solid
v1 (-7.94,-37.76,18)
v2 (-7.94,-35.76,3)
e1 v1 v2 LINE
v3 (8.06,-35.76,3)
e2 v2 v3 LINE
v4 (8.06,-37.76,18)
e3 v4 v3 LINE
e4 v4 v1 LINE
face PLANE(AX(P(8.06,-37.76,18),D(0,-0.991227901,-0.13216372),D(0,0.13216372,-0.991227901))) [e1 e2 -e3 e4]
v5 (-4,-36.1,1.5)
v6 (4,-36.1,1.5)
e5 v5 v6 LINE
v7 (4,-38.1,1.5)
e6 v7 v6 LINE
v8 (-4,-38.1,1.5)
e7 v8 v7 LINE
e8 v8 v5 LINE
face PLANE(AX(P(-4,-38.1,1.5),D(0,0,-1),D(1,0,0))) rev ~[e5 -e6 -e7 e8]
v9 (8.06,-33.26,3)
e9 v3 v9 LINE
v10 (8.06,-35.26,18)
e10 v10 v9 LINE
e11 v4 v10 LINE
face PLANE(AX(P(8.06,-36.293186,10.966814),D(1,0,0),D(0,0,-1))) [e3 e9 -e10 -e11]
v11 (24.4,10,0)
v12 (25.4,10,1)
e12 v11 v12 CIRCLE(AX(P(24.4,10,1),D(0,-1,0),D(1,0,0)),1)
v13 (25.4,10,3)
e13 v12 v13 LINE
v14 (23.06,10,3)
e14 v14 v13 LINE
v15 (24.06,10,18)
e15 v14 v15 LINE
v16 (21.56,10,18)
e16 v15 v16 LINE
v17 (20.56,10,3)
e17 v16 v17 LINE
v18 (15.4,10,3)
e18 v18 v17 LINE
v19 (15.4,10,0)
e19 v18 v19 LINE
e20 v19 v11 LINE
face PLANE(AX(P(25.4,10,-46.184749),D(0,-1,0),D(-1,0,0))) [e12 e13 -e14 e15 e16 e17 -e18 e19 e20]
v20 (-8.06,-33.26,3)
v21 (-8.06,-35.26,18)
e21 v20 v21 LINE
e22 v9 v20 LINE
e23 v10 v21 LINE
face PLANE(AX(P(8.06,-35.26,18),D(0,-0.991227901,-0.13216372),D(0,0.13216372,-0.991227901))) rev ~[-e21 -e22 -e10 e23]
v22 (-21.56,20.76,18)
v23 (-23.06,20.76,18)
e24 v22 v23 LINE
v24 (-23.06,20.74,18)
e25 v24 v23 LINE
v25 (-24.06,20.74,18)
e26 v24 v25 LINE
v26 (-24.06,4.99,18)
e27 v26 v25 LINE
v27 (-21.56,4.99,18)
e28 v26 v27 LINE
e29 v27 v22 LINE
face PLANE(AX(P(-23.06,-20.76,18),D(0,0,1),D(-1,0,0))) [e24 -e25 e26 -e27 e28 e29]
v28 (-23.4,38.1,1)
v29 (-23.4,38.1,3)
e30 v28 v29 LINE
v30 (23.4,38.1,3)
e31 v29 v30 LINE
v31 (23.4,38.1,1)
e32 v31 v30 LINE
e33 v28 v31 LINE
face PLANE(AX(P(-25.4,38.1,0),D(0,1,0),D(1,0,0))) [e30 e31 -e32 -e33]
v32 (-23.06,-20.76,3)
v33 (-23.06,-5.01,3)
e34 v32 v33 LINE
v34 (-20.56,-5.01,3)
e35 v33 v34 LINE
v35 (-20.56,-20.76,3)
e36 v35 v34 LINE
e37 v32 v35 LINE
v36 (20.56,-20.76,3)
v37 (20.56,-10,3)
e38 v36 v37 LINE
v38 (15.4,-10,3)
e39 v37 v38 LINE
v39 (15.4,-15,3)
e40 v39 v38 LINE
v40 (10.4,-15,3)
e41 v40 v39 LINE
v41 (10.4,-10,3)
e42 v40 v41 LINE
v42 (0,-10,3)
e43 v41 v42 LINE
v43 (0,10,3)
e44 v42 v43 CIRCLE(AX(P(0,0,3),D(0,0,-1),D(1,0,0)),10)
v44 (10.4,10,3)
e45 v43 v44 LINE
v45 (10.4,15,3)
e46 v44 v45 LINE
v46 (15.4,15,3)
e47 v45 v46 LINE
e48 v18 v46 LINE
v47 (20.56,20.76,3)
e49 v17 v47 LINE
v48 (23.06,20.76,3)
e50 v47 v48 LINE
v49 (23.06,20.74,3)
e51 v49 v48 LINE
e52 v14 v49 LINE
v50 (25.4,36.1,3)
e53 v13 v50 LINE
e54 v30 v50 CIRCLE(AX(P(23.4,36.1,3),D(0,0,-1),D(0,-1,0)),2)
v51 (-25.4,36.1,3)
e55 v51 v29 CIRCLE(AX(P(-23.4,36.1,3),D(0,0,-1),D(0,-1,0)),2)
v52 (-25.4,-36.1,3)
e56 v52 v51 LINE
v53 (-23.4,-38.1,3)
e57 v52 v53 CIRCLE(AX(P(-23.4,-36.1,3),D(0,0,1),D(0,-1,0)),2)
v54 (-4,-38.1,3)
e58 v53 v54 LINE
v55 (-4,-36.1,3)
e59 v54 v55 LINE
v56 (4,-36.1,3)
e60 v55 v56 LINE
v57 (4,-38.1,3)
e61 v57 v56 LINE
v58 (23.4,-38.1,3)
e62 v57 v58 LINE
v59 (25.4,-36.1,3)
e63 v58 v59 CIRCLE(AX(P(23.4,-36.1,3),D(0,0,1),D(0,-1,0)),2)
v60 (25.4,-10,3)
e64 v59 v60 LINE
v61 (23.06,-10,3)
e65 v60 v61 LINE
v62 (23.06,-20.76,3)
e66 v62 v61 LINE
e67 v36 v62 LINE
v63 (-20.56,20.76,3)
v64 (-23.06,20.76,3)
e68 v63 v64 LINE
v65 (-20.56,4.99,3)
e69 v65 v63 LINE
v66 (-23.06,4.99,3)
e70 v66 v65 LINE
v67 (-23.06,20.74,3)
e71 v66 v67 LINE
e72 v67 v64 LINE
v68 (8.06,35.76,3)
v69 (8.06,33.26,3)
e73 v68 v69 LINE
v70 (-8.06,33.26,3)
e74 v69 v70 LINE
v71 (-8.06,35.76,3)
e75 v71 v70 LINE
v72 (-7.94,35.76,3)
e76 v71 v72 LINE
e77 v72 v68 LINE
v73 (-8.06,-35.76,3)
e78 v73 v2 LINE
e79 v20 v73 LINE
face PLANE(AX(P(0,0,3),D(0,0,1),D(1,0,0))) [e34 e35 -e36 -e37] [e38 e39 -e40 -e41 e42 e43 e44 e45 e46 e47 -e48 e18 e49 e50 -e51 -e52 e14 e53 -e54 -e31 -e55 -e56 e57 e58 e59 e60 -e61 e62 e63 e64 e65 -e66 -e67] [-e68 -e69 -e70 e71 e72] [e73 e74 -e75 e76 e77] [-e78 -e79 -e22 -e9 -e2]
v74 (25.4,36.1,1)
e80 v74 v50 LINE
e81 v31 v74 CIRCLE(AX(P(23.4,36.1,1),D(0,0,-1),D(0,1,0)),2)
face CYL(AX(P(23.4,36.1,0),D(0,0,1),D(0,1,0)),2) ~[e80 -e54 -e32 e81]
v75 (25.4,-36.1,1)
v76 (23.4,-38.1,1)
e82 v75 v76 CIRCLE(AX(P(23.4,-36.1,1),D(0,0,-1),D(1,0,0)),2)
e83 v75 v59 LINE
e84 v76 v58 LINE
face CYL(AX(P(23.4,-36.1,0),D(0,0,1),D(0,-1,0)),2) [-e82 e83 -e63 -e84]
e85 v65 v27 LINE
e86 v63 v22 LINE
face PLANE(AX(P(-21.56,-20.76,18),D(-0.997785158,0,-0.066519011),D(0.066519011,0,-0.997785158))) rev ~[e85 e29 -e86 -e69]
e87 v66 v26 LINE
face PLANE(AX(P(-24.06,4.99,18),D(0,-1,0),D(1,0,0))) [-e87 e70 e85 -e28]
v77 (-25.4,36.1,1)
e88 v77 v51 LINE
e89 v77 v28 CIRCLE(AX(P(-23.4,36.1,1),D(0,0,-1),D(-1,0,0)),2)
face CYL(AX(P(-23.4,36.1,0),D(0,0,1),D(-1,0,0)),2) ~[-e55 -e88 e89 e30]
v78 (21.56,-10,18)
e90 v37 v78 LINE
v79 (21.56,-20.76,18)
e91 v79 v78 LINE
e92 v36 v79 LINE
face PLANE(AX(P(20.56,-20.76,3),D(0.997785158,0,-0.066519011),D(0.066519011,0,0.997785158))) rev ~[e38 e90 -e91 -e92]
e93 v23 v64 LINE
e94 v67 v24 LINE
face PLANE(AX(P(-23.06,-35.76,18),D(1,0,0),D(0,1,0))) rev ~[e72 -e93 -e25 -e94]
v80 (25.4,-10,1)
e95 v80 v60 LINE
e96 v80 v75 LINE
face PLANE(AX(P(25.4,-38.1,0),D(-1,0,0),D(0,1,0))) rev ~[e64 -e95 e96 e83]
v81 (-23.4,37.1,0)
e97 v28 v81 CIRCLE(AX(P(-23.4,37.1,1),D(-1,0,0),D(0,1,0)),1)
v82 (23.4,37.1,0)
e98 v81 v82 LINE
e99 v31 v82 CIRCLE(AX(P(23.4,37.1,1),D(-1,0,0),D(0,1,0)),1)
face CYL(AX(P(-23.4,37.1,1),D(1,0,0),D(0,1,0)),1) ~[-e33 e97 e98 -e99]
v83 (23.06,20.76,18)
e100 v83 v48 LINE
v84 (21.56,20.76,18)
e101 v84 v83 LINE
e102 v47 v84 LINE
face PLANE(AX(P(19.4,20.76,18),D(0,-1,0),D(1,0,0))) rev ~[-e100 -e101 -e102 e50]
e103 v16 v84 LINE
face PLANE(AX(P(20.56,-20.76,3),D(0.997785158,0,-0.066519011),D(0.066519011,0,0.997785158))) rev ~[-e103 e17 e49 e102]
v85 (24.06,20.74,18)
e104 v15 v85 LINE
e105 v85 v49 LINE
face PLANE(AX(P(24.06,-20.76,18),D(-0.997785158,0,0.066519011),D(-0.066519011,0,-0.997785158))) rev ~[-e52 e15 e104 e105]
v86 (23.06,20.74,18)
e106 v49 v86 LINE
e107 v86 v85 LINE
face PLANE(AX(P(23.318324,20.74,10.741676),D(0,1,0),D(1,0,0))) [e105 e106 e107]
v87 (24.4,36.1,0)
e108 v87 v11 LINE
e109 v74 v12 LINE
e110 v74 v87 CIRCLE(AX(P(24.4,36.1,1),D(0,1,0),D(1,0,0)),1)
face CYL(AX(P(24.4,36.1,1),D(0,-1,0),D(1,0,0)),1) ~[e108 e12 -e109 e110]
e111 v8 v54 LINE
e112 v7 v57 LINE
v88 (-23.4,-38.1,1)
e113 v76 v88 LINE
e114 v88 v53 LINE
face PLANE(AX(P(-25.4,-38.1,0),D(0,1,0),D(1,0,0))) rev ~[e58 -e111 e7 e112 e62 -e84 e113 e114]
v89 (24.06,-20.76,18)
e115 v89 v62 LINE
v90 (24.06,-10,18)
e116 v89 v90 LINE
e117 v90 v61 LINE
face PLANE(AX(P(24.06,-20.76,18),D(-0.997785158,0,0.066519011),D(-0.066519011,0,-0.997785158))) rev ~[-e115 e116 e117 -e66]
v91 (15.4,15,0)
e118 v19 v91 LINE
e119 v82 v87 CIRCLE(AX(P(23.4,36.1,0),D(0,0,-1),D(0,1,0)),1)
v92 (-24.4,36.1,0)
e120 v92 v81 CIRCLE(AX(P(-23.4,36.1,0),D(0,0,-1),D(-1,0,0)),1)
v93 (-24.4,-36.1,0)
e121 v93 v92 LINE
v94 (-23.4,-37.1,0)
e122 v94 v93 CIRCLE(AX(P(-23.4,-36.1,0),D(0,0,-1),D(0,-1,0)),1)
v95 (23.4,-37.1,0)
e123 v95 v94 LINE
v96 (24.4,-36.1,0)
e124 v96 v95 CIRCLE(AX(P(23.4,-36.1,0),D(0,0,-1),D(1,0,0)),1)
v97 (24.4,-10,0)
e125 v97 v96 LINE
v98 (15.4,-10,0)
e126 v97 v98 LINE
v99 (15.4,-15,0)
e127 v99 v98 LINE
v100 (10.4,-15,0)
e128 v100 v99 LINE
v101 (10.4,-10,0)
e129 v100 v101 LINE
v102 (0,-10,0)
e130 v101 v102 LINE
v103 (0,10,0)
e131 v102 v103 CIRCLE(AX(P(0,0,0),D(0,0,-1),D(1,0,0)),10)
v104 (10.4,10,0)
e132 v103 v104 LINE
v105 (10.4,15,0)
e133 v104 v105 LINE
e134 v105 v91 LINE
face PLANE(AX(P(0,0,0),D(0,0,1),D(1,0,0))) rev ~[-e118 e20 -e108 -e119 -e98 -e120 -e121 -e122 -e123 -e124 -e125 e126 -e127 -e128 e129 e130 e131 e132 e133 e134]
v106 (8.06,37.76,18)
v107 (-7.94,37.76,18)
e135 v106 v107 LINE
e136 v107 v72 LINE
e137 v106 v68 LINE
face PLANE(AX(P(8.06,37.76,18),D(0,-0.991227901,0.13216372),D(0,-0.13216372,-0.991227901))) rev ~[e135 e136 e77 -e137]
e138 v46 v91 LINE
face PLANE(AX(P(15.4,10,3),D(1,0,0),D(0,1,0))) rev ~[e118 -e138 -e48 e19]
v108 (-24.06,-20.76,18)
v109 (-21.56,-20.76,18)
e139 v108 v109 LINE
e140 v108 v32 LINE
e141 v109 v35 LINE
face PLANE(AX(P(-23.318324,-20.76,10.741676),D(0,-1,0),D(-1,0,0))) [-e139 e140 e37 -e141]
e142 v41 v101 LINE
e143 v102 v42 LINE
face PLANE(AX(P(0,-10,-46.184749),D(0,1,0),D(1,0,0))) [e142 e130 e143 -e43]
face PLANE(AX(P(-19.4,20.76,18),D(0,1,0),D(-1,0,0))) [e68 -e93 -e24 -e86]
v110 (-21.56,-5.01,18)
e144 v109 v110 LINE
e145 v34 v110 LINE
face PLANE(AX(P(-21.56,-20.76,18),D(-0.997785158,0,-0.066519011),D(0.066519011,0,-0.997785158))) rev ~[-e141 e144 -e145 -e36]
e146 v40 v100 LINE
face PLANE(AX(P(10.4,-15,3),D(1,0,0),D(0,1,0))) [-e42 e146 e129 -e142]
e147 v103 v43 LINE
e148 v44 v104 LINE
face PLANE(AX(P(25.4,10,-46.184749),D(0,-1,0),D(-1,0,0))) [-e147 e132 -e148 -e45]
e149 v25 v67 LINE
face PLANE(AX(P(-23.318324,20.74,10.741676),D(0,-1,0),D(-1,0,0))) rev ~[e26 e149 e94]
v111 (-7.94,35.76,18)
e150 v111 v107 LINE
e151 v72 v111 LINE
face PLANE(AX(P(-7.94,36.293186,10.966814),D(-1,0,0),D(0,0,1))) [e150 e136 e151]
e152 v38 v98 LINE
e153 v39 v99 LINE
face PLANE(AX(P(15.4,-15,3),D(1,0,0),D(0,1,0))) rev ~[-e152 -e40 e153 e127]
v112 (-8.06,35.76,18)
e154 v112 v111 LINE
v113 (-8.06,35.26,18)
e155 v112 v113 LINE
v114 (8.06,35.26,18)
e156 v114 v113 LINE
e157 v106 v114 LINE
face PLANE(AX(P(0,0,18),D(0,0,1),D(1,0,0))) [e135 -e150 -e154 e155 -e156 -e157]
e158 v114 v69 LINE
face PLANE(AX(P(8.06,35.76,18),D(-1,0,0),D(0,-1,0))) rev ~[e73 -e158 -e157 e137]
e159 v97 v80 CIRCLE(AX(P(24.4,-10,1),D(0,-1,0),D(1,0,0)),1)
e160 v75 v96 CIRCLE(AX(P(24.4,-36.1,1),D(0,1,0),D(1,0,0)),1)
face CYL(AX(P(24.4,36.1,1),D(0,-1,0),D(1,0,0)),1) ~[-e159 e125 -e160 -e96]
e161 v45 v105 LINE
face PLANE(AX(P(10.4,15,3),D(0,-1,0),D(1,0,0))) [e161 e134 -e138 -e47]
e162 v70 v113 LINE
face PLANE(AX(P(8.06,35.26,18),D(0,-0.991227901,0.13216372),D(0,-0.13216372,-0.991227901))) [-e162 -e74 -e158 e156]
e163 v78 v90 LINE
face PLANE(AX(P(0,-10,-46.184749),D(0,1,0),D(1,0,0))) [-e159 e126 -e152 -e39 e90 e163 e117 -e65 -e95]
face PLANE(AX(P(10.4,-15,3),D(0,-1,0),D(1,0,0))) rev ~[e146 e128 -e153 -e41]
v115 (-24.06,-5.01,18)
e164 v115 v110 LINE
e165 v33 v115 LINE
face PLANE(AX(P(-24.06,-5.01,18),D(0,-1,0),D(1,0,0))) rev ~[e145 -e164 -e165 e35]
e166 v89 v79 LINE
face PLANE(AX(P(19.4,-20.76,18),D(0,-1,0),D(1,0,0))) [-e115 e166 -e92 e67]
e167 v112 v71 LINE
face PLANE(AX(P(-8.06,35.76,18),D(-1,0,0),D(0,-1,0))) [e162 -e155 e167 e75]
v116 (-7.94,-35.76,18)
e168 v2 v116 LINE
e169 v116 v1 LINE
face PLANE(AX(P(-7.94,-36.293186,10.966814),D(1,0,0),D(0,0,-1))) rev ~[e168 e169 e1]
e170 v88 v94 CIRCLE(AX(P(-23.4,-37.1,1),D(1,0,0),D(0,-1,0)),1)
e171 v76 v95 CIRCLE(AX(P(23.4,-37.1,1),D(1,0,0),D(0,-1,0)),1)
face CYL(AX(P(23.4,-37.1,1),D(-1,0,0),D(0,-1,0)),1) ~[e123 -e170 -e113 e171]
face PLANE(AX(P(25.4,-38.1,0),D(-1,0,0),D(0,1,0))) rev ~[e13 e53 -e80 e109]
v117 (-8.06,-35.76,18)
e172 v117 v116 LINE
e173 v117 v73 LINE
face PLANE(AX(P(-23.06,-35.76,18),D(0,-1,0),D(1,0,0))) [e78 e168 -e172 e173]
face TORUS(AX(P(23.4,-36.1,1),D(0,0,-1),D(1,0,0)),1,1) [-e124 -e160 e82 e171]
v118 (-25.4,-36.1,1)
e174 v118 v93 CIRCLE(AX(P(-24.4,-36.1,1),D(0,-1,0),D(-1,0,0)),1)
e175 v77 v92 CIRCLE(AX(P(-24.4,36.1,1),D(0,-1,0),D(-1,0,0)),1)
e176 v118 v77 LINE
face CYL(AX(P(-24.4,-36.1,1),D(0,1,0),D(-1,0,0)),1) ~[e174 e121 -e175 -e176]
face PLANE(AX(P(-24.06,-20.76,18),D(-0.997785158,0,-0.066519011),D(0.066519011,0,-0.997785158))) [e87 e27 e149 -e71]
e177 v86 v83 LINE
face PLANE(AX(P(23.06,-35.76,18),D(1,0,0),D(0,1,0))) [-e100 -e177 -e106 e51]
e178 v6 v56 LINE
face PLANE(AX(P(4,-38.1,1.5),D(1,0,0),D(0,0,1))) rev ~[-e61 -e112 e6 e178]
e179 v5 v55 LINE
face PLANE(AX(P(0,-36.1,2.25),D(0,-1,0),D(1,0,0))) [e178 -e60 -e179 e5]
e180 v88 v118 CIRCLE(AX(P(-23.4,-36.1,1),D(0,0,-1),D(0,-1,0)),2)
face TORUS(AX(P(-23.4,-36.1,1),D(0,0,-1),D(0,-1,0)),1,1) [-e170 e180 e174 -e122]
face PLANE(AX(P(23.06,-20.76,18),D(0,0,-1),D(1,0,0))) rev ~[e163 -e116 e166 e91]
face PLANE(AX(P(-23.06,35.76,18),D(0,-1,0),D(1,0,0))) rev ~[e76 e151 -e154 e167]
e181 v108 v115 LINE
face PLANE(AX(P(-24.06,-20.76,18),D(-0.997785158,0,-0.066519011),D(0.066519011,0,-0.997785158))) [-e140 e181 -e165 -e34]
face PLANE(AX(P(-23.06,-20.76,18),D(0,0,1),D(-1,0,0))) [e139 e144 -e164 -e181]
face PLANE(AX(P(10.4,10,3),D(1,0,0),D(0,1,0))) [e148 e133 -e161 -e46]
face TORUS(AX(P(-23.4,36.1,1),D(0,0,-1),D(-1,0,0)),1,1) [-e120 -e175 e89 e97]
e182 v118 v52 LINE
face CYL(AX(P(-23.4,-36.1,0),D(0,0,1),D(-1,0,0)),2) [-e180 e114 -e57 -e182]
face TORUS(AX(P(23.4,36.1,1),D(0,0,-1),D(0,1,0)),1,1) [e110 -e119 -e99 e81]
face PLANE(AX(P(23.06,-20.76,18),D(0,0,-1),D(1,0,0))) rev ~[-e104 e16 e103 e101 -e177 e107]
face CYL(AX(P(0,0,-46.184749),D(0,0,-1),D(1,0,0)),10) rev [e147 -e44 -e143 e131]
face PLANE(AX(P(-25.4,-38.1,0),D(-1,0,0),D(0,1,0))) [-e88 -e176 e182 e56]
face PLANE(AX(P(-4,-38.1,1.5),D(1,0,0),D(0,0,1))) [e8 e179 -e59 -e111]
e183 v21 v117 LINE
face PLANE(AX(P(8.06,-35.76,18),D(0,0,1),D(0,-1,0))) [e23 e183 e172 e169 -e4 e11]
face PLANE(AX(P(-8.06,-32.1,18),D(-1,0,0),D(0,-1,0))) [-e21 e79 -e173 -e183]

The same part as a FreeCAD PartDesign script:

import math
import FreeCAD as App
import Part
import Sketcher

V = App.Vector


def edges_at(feature, points):
    """Names of the edges that pass closest to the given points."""
    edges = feature.Shape.Edges
    near = lambda p: min(range(len(edges)), key=lambda i: edges[i].distToShape(Part.Vertex(*p))[0])
    return sorted({f"Edge{near(p) + 1}" for p in points})

doc = App.newDocument("Part")
body = doc.addObject("PartDesign::Body", "Body")

# Sketch on XY plane
sketch1 = doc.addObject("Sketcher::SketchObject", "Sketch")
body.addObject(sketch1)
sketch1.AttachmentSupport = (doc.XY_Plane, [""])
sketch1.MapMode = "FlatFace"
sketch1.addGeometry(Part.LineSegment(V(-25, 38, 0), V(-25, -38, 0)), False)
sketch1.addGeometry(Part.LineSegment(V(-25, -38, 0), V(25, -38, 0)), False)
sketch1.addGeometry(Part.LineSegment(V(25, -38, 0), V(25, 38, 0)), False)
sketch1.addGeometry(Part.LineSegment(V(25, 38, 0), V(-25, 38, 0)), False)
sketch1.addConstraint(Sketcher.Constraint("Coincident", 0, 2, 1, 1))
sketch1.addConstraint(Sketcher.Constraint("Coincident", 1, 2, 2, 1))
sketch1.addConstraint(Sketcher.Constraint("Coincident", 2, 2, 3, 1))
sketch1.addConstraint(Sketcher.Constraint("Coincident", 3, 2, 0, 1))
sketch1.addConstraint(Sketcher.Constraint("Vertical", 0))
sketch1.addConstraint(Sketcher.Constraint("Horizontal", 1))
sketch1.addConstraint(Sketcher.Constraint("Vertical", 2))
sketch1.addConstraint(Sketcher.Constraint("Horizontal", 3))
sketch1.addConstraint(Sketcher.Constraint("Symmetric", 0, 2, 2, 2, -1, 1))
sketch1.addConstraint(Sketcher.Constraint("DistanceX", 1, 1, 1, 2, 50.8))
sketch1.addConstraint(Sketcher.Constraint("DistanceY", 0, 2, 0, 1, 76.2))
pad1 = doc.addObject("PartDesign::Pad", "Pad")
body.addObject(pad1)
pad1.Profile = sketch1
pad1.Length = 18

# Sketch on XY plane
sketch2 = doc.addObject("Sketcher::SketchObject", "Sketch001")
body.addObject(sketch2)
sketch2.AttachmentSupport = (doc.XY_Plane, [""])
sketch2.MapMode = "FlatFace"
sketch2.AttachmentOffset = App.Placement(V(0, 0, 18), App.Rotation())
sketch2.addGeometry(Part.LineSegment(V(-25, 38, 0), V(-25, -38, 0)), False)
sketch2.addGeometry(Part.LineSegment(V(-25, -38, 0), V(25, -38, 0)), False)
sketch2.addGeometry(Part.LineSegment(V(25, -38, 0), V(25, 38, 0)), False)
sketch2.addGeometry(Part.LineSegment(V(25, 38, 0), V(-25, 38, 0)), False)
sketch2.addGeometry(Part.LineSegment(V(23, -36, 0), V(-23, -36, 0)), False)
sketch2.addGeometry(Part.LineSegment(V(-23, -36, 0), V(-23, 36, 0)), False)
sketch2.addGeometry(Part.LineSegment(V(-23, 36, 0), V(23, 36, 0)), False)
sketch2.addGeometry(Part.LineSegment(V(23, 36, 0), V(23, -36, 0)), False)
sketch2.addGeometry(Part.LineSegment(V(-19, 32, 0), V(-19, -32, 0)), False)
sketch2.addGeometry(Part.LineSegment(V(-19, -32, 0), V(19, -32, 0)), False)
sketch2.addGeometry(Part.LineSegment(V(19, -32, 0), V(19, 32, 0)), False)
sketch2.addGeometry(Part.LineSegment(V(19, 32, 0), V(-19, 32, 0)), False)
sketch2.addConstraint(Sketcher.Constraint("Coincident", 0, 2, 1, 1))
sketch2.addConstraint(Sketcher.Constraint("Coincident", 1, 2, 2, 1))
sketch2.addConstraint(Sketcher.Constraint("Coincident", 2, 2, 3, 1))
sketch2.addConstraint(Sketcher.Constraint("Coincident", 3, 2, 0, 1))
sketch2.addConstraint(Sketcher.Constraint("Coincident", 4, 2, 5, 1))
sketch2.addConstraint(Sketcher.Constraint("Coincident", 5, 2, 6, 1))
sketch2.addConstraint(Sketcher.Constraint("Coincident", 6, 2, 7, 1))
sketch2.addConstraint(Sketcher.Constraint("Coincident", 7, 2, 4, 1))
sketch2.addConstraint(Sketcher.Constraint("Coincident", 8, 2, 9, 1))
sketch2.addConstraint(Sketcher.Constraint("Coincident", 9, 2, 10, 1))
sketch2.addConstraint(Sketcher.Constraint("Coincident", 10, 2, 11, 1))
sketch2.addConstraint(Sketcher.Constraint("Coincident", 11, 2, 8, 1))
sketch2.addConstraint(Sketcher.Constraint("Vertical", 0))
sketch2.addConstraint(Sketcher.Constraint("Horizontal", 1))
sketch2.addConstraint(Sketcher.Constraint("Vertical", 2))
sketch2.addConstraint(Sketcher.Constraint("Horizontal", 3))
sketch2.addConstraint(Sketcher.Constraint("Horizontal", 4))
sketch2.addConstraint(Sketcher.Constraint("Vertical", 5))
sketch2.addConstraint(Sketcher.Constraint("Horizontal", 6))
sketch2.addConstraint(Sketcher.Constraint("Vertical", 7))
sketch2.addConstraint(Sketcher.Constraint("Vertical", 8))
sketch2.addConstraint(Sketcher.Constraint("Horizontal", 9))
sketch2.addConstraint(Sketcher.Constraint("Vertical", 10))
sketch2.addConstraint(Sketcher.Constraint("Horizontal", 11))
sketch2.addConstraint(Sketcher.Constraint("Symmetric", 0, 2, 2, 2, -1, 1))
sketch2.addConstraint(Sketcher.Constraint("Symmetric", 4, 2, 6, 2, -1, 1))
sketch2.addConstraint(Sketcher.Constraint("Symmetric", 8, 2, 10, 2, -1, 1))
sketch2.addConstraint(Sketcher.Constraint("DistanceX", 1, 1, 1, 2, 50.8))
sketch2.addConstraint(Sketcher.Constraint("DistanceX", 9, 1, 9, 2, 38.8))
sketch2.addConstraint(Sketcher.Constraint("DistanceY", 0, 2, 0, 1, 76.2))
sketch2.addConstraint(Sketcher.Constraint("DistanceY", 8, 2, 8, 1, 64.2))
sketch2.addConstraint(Sketcher.Constraint("DistanceX", 4, 2, 4, 1, 46.12))
sketch2.addConstraint(Sketcher.Constraint("DistanceY", 5, 1, 5, 2, 71.52))
pocket1 = doc.addObject("PartDesign::Pocket", "Pocket")
body.addObject(pocket1)
pocket1.Profile = sketch2
pocket1.Length = 15

# Sketch on XY plane
sketch3 = doc.addObject("Sketcher::SketchObject", "Sketch002")
body.addObject(sketch3)
sketch3.AttachmentSupport = (doc.XY_Plane, [""])
sketch3.MapMode = "FlatFace"
sketch3.AttachmentOffset = App.Placement(V(0, 0, 18), App.Rotation())
sketch3.addGeometry(Part.LineSegment(V(-8.1, 35.8, 0), V(-23.1, 35.8, 0)), False)
sketch3.addGeometry(Part.LineSegment(V(-23.1, 35.8, 0), V(-23.1, 20.8, 0)), False)
sketch3.addGeometry(Part.LineSegment(V(-23.1, 20.8, 0), V(-19.4, 20.8, 0)), False)
sketch3.addGeometry(Part.LineSegment(V(-19.4, 20.8, 0), V(-19.4, 32.1, 0)), False)
sketch3.addGeometry(Part.LineSegment(V(-19.4, 32.1, 0), V(-8.1, 32.1, 0)), False)
sketch3.addGeometry(Part.LineSegment(V(-8.1, 32.1, 0), V(-8.1, 35.8, 0)), False)
sketch3.addGeometry(Part.LineSegment(V(23.1, 35.8, 0), V(8.1, 35.8, 0)), False)
sketch3.addGeometry(Part.LineSegment(V(8.1, 35.8, 0), V(8.1, 32.1, 0)), False)
sketch3.addGeometry(Part.LineSegment(V(8.1, 32.1, 0), V(19.4, 32.1, 0)), False)
sketch3.addGeometry(Part.LineSegment(V(19.4, 32.1, 0), V(19.4, 20.8, 0)), False)
sketch3.addGeometry(Part.LineSegment(V(19.4, 20.8, 0), V(23.1, 20.8, 0)), False)
sketch3.addGeometry(Part.LineSegment(V(23.1, 20.8, 0), V(23.1, 35.8, 0)), False)
sketch3.addGeometry(Part.LineSegment(V(-23.1, -20.8, 0), V(-23.1, -35.8, 0)), False)
sketch3.addGeometry(Part.LineSegment(V(-23.1, -35.8, 0), V(-8.1, -35.8, 0)), False)
sketch3.addGeometry(Part.LineSegment(V(-8.1, -35.8, 0), V(-8.1, -32.1, 0)), False)
sketch3.addGeometry(Part.LineSegment(V(-8.1, -32.1, 0), V(-19.4, -32.1, 0)), False)
sketch3.addGeometry(Part.LineSegment(V(-19.4, -32.1, 0), V(-19.4, -20.8, 0)), False)
sketch3.addGeometry(Part.LineSegment(V(-19.4, -20.8, 0), V(-23.1, -20.8, 0)), False)
sketch3.addGeometry(Part.LineSegment(V(8.1, -35.8, 0), V(23.1, -35.8, 0)), False)
sketch3.addGeometry(Part.LineSegment(V(23.1, -35.8, 0), V(23.1, -20.8, 0)), False)
sketch3.addGeometry(Part.LineSegment(V(23.1, -20.8, 0), V(19.4, -20.8, 0)), False)
sketch3.addGeometry(Part.LineSegment(V(19.4, -20.8, 0), V(19.4, -32.1, 0)), False)
sketch3.addGeometry(Part.LineSegment(V(19.4, -32.1, 0), V(8.1, -32.1, 0)), False)
sketch3.addGeometry(Part.LineSegment(V(8.1, -32.1, 0), V(8.1, -35.8, 0)), False)
sketch3.addConstraint(Sketcher.Constraint("Coincident", 0, 2, 1, 1))
sketch3.addConstraint(Sketcher.Constraint("Coincident", 1, 2, 2, 1))
sketch3.addConstraint(Sketcher.Constraint("Coincident", 2, 2, 3, 1))
sketch3.addConstraint(Sketcher.Constraint("Coincident", 3, 2, 4, 1))
sketch3.addConstraint(Sketcher.Constraint("Coincident", 4, 2, 5, 1))
sketch3.addConstraint(Sketcher.Constraint("Coincident", 5, 2, 0, 1))
sketch3.addConstraint(Sketcher.Constraint("Coincident", 6, 2, 7, 1))
sketch3.addConstraint(Sketcher.Constraint("Coincident", 7, 2, 8, 1))
sketch3.addConstraint(Sketcher.Constraint("Coincident", 8, 2, 9, 1))
sketch3.addConstraint(Sketcher.Constraint("Coincident", 9, 2, 10, 1))
sketch3.addConstraint(Sketcher.Constraint("Coincident", 10, 2, 11, 1))
sketch3.addConstraint(Sketcher.Constraint("Coincident", 11, 2, 6, 1))
sketch3.addConstraint(Sketcher.Constraint("Coincident", 12, 2, 13, 1))
sketch3.addConstraint(Sketcher.Constraint("Coincident", 13, 2, 14, 1))
sketch3.addConstraint(Sketcher.Constraint("Coincident", 14, 2, 15, 1))
sketch3.addConstraint(Sketcher.Constraint("Coincident", 15, 2, 16, 1))
sketch3.addConstraint(Sketcher.Constraint("Coincident", 16, 2, 17, 1))
sketch3.addConstraint(Sketcher.Constraint("Coincident", 17, 2, 12, 1))
sketch3.addConstraint(Sketcher.Constraint("Coincident", 18, 2, 19, 1))
sketch3.addConstraint(Sketcher.Constraint("Coincident", 19, 2, 20, 1))
sketch3.addConstraint(Sketcher.Constraint("Coincident", 20, 2, 21, 1))
sketch3.addConstraint(Sketcher.Constraint("Coincident", 21, 2, 22, 1))
sketch3.addConstraint(Sketcher.Constraint("Coincident", 22, 2, 23, 1))
sketch3.addConstraint(Sketcher.Constraint("Coincident", 23, 2, 18, 1))
sketch3.addConstraint(Sketcher.Constraint("Horizontal", 0))
sketch3.addConstraint(Sketcher.Constraint("Vertical", 1))
sketch3.addConstraint(Sketcher.Constraint("Horizontal", 2))
sketch3.addConstraint(Sketcher.Constraint("Vertical", 3))
sketch3.addConstraint(Sketcher.Constraint("Horizontal", 4))
sketch3.addConstraint(Sketcher.Constraint("Vertical", 5))
sketch3.addConstraint(Sketcher.Constraint("Horizontal", 6))
sketch3.addConstraint(Sketcher.Constraint("Vertical", 7))
sketch3.addConstraint(Sketcher.Constraint("Horizontal", 8))
sketch3.addConstraint(Sketcher.Constraint("Vertical", 9))
sketch3.addConstraint(Sketcher.Constraint("Horizontal", 10))
sketch3.addConstraint(Sketcher.Constraint("Vertical", 11))
sketch3.addConstraint(Sketcher.Constraint("Vertical", 12))
sketch3.addConstraint(Sketcher.Constraint("Horizontal", 13))
sketch3.addConstraint(Sketcher.Constraint("Vertical", 14))
sketch3.addConstraint(Sketcher.Constraint("Horizontal", 15))
sketch3.addConstraint(Sketcher.Constraint("Vertical", 16))
sketch3.addConstraint(Sketcher.Constraint("Horizontal", 17))
sketch3.addConstraint(Sketcher.Constraint("Horizontal", 18))
sketch3.addConstraint(Sketcher.Constraint("Vertical", 19))
sketch3.addConstraint(Sketcher.Constraint("Horizontal", 20))
sketch3.addConstraint(Sketcher.Constraint("Vertical", 21))
sketch3.addConstraint(Sketcher.Constraint("Horizontal", 22))
sketch3.addConstraint(Sketcher.Constraint("Vertical", 23))
sketch3.addConstraint(Sketcher.Constraint("Symmetric", 11, 2, 12, 2, -1, 1))
sketch3.addConstraint(Sketcher.Constraint("Symmetric", 7, 2, 14, 2, -1, 1))
sketch3.addConstraint(Sketcher.Constraint("Symmetric", 9, 2, 16, 2, -1, 1))
sketch3.addConstraint(Sketcher.Constraint("Symmetric", 0, 2, 18, 2, -1, 1))
sketch3.addConstraint(Sketcher.Constraint("Symmetric", 2, 2, 20, 2, -1, 1))
sketch3.addConstraint(Sketcher.Constraint("Symmetric", 4, 2, 22, 2, -1, 1))
sketch3.addConstraint(Sketcher.Constraint("Symmetric", 5, 2, 6, 2, -2))
sketch3.addConstraint(Sketcher.Constraint("Symmetric", 3, 2, 8, 2, -2))
sketch3.addConstraint(Sketcher.Constraint("Symmetric", 1, 2, 10, 2, -2))
sketch3.addConstraint(Sketcher.Constraint("Equal", 18, 1))
sketch3.addConstraint(Sketcher.Constraint("Equal", 22, 3))
sketch3.addConstraint(Sketcher.Constraint("DistanceX", 0, 2, 0, 1, 15.0))
sketch3.addConstraint(Sketcher.Constraint("DistanceX", 2, 1, 2, 2, 3.66))
sketch3.addConstraint(Sketcher.Constraint("DistanceX", 2, 2, -1, 1, 19.4))
sketch3.addConstraint(Sketcher.Constraint("DistanceY", -1, 1, 3, 2, 32.1))
pocket2 = doc.addObject("PartDesign::Pocket", "Pocket001")
body.addObject(pocket2)
pocket2.Profile = sketch3
pocket2.Length = 15

# Sketch on XZ plane
sketch4 = doc.addObject("Sketcher::SketchObject", "Sketch003")
body.addObject(sketch4)
sketch4.AttachmentSupport = (doc.XZ_Plane, [""])
sketch4.MapMode = "FlatFace"
sketch4.AttachmentOffset = App.Placement(V(0, 0, 20.76), App.Rotation())
sketch4.addGeometry(Part.LineSegment(V(-23.1, 18, 0), V(-24.1, 18, 0)), False)
sketch4.addGeometry(Part.LineSegment(V(-24.1, 18, 0), V(-23.1, 3, 0)), False)
sketch4.addGeometry(Part.LineSegment(V(-23.1, 3, 0), V(-23.1, 18, 0)), False)
sketch4.addGeometry(Part.LineSegment(V(24.1, 18, 0), V(23.1, 18, 0)), False)
sketch4.addGeometry(Part.LineSegment(V(23.1, 18, 0), V(23.1, 3, 0)), False)
sketch4.addGeometry(Part.LineSegment(V(23.1, 3, 0), V(24.1, 18, 0)), False)
sketch4.addConstraint(Sketcher.Constraint("Coincident", 0, 2, 1, 1))
sketch4.addConstraint(Sketcher.Constraint("Coincident", 1, 2, 2, 1))
sketch4.addConstraint(Sketcher.Constraint("Coincident", 2, 2, 0, 1))
sketch4.addConstraint(Sketcher.Constraint("Coincident", 3, 2, 4, 1))
sketch4.addConstraint(Sketcher.Constraint("Coincident", 4, 2, 5, 1))
sketch4.addConstraint(Sketcher.Constraint("Coincident", 5, 2, 3, 1))
sketch4.addConstraint(Sketcher.Constraint("Horizontal", 0))
sketch4.addConstraint(Sketcher.Constraint("Vertical", 2))
sketch4.addConstraint(Sketcher.Constraint("Horizontal", 3))
sketch4.addConstraint(Sketcher.Constraint("Vertical", 4))
sketch4.addConstraint(Sketcher.Constraint("Symmetric", 2, 2, 3, 2, -2))
sketch4.addConstraint(Sketcher.Constraint("Horizontal", 1, 2, 4, 2))
sketch4.addConstraint(Sketcher.Constraint("Equal", 0, 3))
sketch4.addConstraint(Sketcher.Constraint("DistanceX", 0, 2, 0, 1, 1.0))
sketch4.addConstraint(Sketcher.Constraint("DistanceY", 2, 1, 2, 2, 15.0))
sketch4.addConstraint(Sketcher.Constraint("DistanceY", -1, 1, 0, 2, 18.0))
sketch4.addConstraint(Sketcher.Constraint("DistanceX", 0, 2, -1, 1, 24.06))
pad2 = doc.addObject("PartDesign::Pad", "Pad001")
body.addObject(pad2)
pad2.Profile = sketch4
pad2.Length = 41.5
pad2.Reversed = True

# Sketch on XZ plane
sketch5 = doc.addObject("Sketcher::SketchObject", "Sketch004")
body.addObject(sketch5)
sketch5.AttachmentSupport = (doc.XZ_Plane, [""])
sketch5.MapMode = "FlatFace"
sketch5.AttachmentOffset = App.Placement(V(0, 0, 20.76), App.Rotation())
sketch5.addGeometry(Part.LineSegment(V(-19.4, 18, 0), V(-21.6, 18, 0)), False)
sketch5.addGeometry(Part.LineSegment(V(-21.6, 18, 0), V(-20.6, 3, 0)), False)
sketch5.addGeometry(Part.LineSegment(V(-20.6, 3, 0), V(-19.4, 3, 0)), False)
sketch5.addGeometry(Part.LineSegment(V(-19.4, 3, 0), V(-19.4, 18, 0)), False)
sketch5.addConstraint(Sketcher.Constraint("Coincident", 0, 2, 1, 1))
sketch5.addConstraint(Sketcher.Constraint("Coincident", 1, 2, 2, 1))
sketch5.addConstraint(Sketcher.Constraint("Coincident", 2, 2, 3, 1))
sketch5.addConstraint(Sketcher.Constraint("Coincident", 3, 2, 0, 1))
sketch5.addConstraint(Sketcher.Constraint("Horizontal", 0))
sketch5.addConstraint(Sketcher.Constraint("Horizontal", 2))
sketch5.addConstraint(Sketcher.Constraint("Vertical", 3))
sketch5.addConstraint(Sketcher.Constraint("DistanceY", 3, 1, 3, 2, 15.0))
sketch5.addConstraint(Sketcher.Constraint("DistanceY", -1, 1, 0, 2, 18.0))
sketch5.addConstraint(Sketcher.Constraint("DistanceX", 0, 2, 1, 2, 1.0))
sketch5.addConstraint(Sketcher.Constraint("DistanceX", 0, 2, 0, 1, 2.16))
sketch5.addConstraint(Sketcher.Constraint("DistanceX", 2, 2, -1, 1, 19.4))
pocket3 = doc.addObject("PartDesign::Pocket", "Pocket002")
body.addObject(pocket3)
pocket3.Profile = sketch5
pocket3.Length = 51.5

# Sketch on XZ plane
sketch6 = doc.addObject("Sketcher::SketchObject", "Sketch005")
body.addObject(sketch6)
sketch6.AttachmentSupport = (doc.XZ_Plane, [""])
sketch6.MapMode = "FlatFace"
sketch6.AttachmentOffset = App.Placement(V(0, 0, 20.76), App.Rotation())
sketch6.addGeometry(Part.LineSegment(V(19.4, 18, 0), V(19.4, 3, 0)), False)
sketch6.addGeometry(Part.LineSegment(V(19.4, 3, 0), V(20.6, 3, 0)), False)
sketch6.addGeometry(Part.LineSegment(V(20.6, 3, 0), V(21.6, 18, 0)), False)
sketch6.addGeometry(Part.LineSegment(V(21.6, 18, 0), V(19.4, 18, 0)), False)
sketch6.addConstraint(Sketcher.Constraint("Coincident", 0, 2, 1, 1))
sketch6.addConstraint(Sketcher.Constraint("Coincident", 1, 2, 2, 1))
sketch6.addConstraint(Sketcher.Constraint("Coincident", 2, 2, 3, 1))
sketch6.addConstraint(Sketcher.Constraint("Coincident", 3, 2, 0, 1))
sketch6.addConstraint(Sketcher.Constraint("Vertical", 0))
sketch6.addConstraint(Sketcher.Constraint("Horizontal", 1))
sketch6.addConstraint(Sketcher.Constraint("Horizontal", 3))
sketch6.addConstraint(Sketcher.Constraint("DistanceY", 0, 2, 0, 1, 15.0))
sketch6.addConstraint(Sketcher.Constraint("DistanceY", -1, 1, 0, 2, 3.0))
sketch6.addConstraint(Sketcher.Constraint("DistanceX", 1, 2, 2, 2, 1.0))
sketch6.addConstraint(Sketcher.Constraint("DistanceX", 1, 1, 1, 2, 1.16))
sketch6.addConstraint(Sketcher.Constraint("DistanceX", -1, 1, 0, 2, 19.4))
pocket4 = doc.addObject("PartDesign::Pocket", "Pocket003")
body.addObject(pocket4)
pocket4.Profile = sketch6
pocket4.Length = 51.5

# Sketch on YZ plane
sketch7 = doc.addObject("Sketcher::SketchObject", "Sketch006")
body.addObject(sketch7)
sketch7.AttachmentSupport = (doc.YZ_Plane, [""])
sketch7.MapMode = "FlatFace"
sketch7.AttachmentOffset = App.Placement(V(0, 0, 8.06), App.Rotation())
sketch7.addGeometry(Part.LineSegment(V(-35.8, 18, 0), V(-37.8, 18, 0)), False)
sketch7.addGeometry(Part.LineSegment(V(-37.8, 18, 0), V(-35.8, 3, 0)), False)
sketch7.addGeometry(Part.LineSegment(V(-35.8, 3, 0), V(-35.8, 18, 0)), False)
sketch7.addGeometry(Part.LineSegment(V(37.8, 18, 0), V(35.8, 18, 0)), False)
sketch7.addGeometry(Part.LineSegment(V(35.8, 18, 0), V(35.8, 3, 0)), False)
sketch7.addGeometry(Part.LineSegment(V(35.8, 3, 0), V(37.8, 18, 0)), False)
sketch7.addConstraint(Sketcher.Constraint("Coincident", 0, 2, 1, 1))
sketch7.addConstraint(Sketcher.Constraint("Coincident", 1, 2, 2, 1))
sketch7.addConstraint(Sketcher.Constraint("Coincident", 2, 2, 0, 1))
sketch7.addConstraint(Sketcher.Constraint("Coincident", 3, 2, 4, 1))
sketch7.addConstraint(Sketcher.Constraint("Coincident", 4, 2, 5, 1))
sketch7.addConstraint(Sketcher.Constraint("Coincident", 5, 2, 3, 1))
sketch7.addConstraint(Sketcher.Constraint("Horizontal", 0))
sketch7.addConstraint(Sketcher.Constraint("Vertical", 2))
sketch7.addConstraint(Sketcher.Constraint("Horizontal", 3))
sketch7.addConstraint(Sketcher.Constraint("Vertical", 4))
sketch7.addConstraint(Sketcher.Constraint("Symmetric", 2, 2, 3, 2, -2))
sketch7.addConstraint(Sketcher.Constraint("Horizontal", 1, 2, 4, 2))
sketch7.addConstraint(Sketcher.Constraint("Equal", 0, 3))
sketch7.addConstraint(Sketcher.Constraint("DistanceX", 0, 2, 0, 1, 2.0))
sketch7.addConstraint(Sketcher.Constraint("DistanceY", 2, 1, 2, 2, 15.0))
sketch7.addConstraint(Sketcher.Constraint("DistanceY", -1, 1, 0, 2, 18.0))
sketch7.addConstraint(Sketcher.Constraint("DistanceX", 0, 2, -1, 1, 37.76))
pad3 = doc.addObject("PartDesign::Pad", "Pad002")
body.addObject(pad3)
pad3.Profile = sketch7
pad3.Length = 16
pad3.Reversed = True

# Sketch on YZ plane
sketch8 = doc.addObject("Sketcher::SketchObject", "Sketch007")
body.addObject(sketch8)
sketch8.AttachmentSupport = (doc.YZ_Plane, [""])
sketch8.MapMode = "FlatFace"
sketch8.AttachmentOffset = App.Placement(V(0, 0, 8.06), App.Rotation())
sketch8.addGeometry(Part.LineSegment(V(-32.1, 3, 0), V(-32.1, 18, 0)), False)
sketch8.addGeometry(Part.LineSegment(V(-32.1, 18, 0), V(-35.3, 18, 0)), False)
sketch8.addGeometry(Part.LineSegment(V(-35.3, 18, 0), V(-33.3, 3, 0)), False)
sketch8.addGeometry(Part.LineSegment(V(-33.3, 3, 0), V(-32.1, 3, 0)), False)
sketch8.addGeometry(Part.LineSegment(V(35.3, 18, 0), V(32.1, 18, 0)), False)
sketch8.addGeometry(Part.LineSegment(V(32.1, 18, 0), V(32.1, 3, 0)), False)
sketch8.addGeometry(Part.LineSegment(V(32.1, 3, 0), V(33.3, 3, 0)), False)
sketch8.addGeometry(Part.LineSegment(V(33.3, 3, 0), V(35.3, 18, 0)), False)
sketch8.addConstraint(Sketcher.Constraint("Coincident", 0, 2, 1, 1))
sketch8.addConstraint(Sketcher.Constraint("Coincident", 1, 2, 2, 1))
sketch8.addConstraint(Sketcher.Constraint("Coincident", 2, 2, 3, 1))
sketch8.addConstraint(Sketcher.Constraint("Coincident", 3, 2, 0, 1))
sketch8.addConstraint(Sketcher.Constraint("Coincident", 4, 2, 5, 1))
sketch8.addConstraint(Sketcher.Constraint("Coincident", 5, 2, 6, 1))
sketch8.addConstraint(Sketcher.Constraint("Coincident", 6, 2, 7, 1))
sketch8.addConstraint(Sketcher.Constraint("Coincident", 7, 2, 4, 1))
sketch8.addConstraint(Sketcher.Constraint("Vertical", 0))
sketch8.addConstraint(Sketcher.Constraint("Horizontal", 1))
sketch8.addConstraint(Sketcher.Constraint("Horizontal", 3))
sketch8.addConstraint(Sketcher.Constraint("Horizontal", 4))
sketch8.addConstraint(Sketcher.Constraint("Vertical", 5))
sketch8.addConstraint(Sketcher.Constraint("Horizontal", 6))
sketch8.addConstraint(Sketcher.Constraint("Symmetric", 0, 2, 4, 2, -2))
sketch8.addConstraint(Sketcher.Constraint("Symmetric", 2, 2, 6, 2, -2))
sketch8.addConstraint(Sketcher.Constraint("Equal", 1, 4))
sketch8.addConstraint(Sketcher.Constraint("DistanceY", 0, 1, 0, 2, 15.0))
sketch8.addConstraint(Sketcher.Constraint("DistanceY", -1, 1, 0, 2, 18.0))
sketch8.addConstraint(Sketcher.Constraint("DistanceX", 1, 2, 2, 2, 2.0))
sketch8.addConstraint(Sketcher.Constraint("DistanceX", 1, 2, 1, 1, 3.16))
sketch8.addConstraint(Sketcher.Constraint("DistanceX", 0, 2, -1, 1, 32.1))
pocket5 = doc.addObject("PartDesign::Pocket", "Pocket004")
body.addObject(pocket5)
pocket5.Profile = sketch8
pocket5.Length = 16.5
doc.recompute()

fillet = doc.addObject("PartDesign::Fillet", "Fillet")
body.addObject(fillet)
fillet.Base = (pocket5, edges_at(pocket5, [
    (-25.4, 38.1, 1.5),
    (25.4, 38.1, 1.5),
    (25.4, -38.1, 1.5),
    (-25.4, -38.1, 1.5),
]))
fillet.Radius = 2
doc.recompute()

fillet2 = doc.addObject("PartDesign::Fillet", "Fillet001")
body.addObject(fillet2)
fillet2.Base = (fillet, edges_at(fillet, [
    (0, 38.1, 0),
    (-25.4, 0, 0),
    (25.4, 0, 0),
    (0, -38.1, 0),
    (24.814, -37.514, 0),
    (-24.814, -37.514, 0),
    (-24.814, 37.514, 0),
    (24.814, 37.514, 0),
]))
fillet2.Radius = 1

# Sketch on XY plane
sketch9 = doc.addObject("Sketcher::SketchObject", "Sketch008")
body.addObject(sketch9)
sketch9.AttachmentSupport = (doc.XY_Plane, [""])
sketch9.MapMode = "FlatFace"
sketch9.AttachmentOffset = App.Placement(V(0, 0, 18), App.Rotation())
sketch9.addGeometry(Part.LineSegment(V(-24, 5, 0), V(-24, -5, 0)), False)
sketch9.addGeometry(Part.LineSegment(V(-24, -5, 0), V(24, -5, 0)), False)
sketch9.addGeometry(Part.LineSegment(V(24, -5, 0), V(24, 5, 0)), False)
sketch9.addGeometry(Part.LineSegment(V(24, 5, 0), V(-24, 5, 0)), False)
sketch9.addConstraint(Sketcher.Constraint("Coincident", 0, 2, 1, 1))
sketch9.addConstraint(Sketcher.Constraint("Coincident", 1, 2, 2, 1))
sketch9.addConstraint(Sketcher.Constraint("Coincident", 2, 2, 3, 1))
sketch9.addConstraint(Sketcher.Constraint("Coincident", 3, 2, 0, 1))
sketch9.addConstraint(Sketcher.Constraint("Vertical", 0))
sketch9.addConstraint(Sketcher.Constraint("Horizontal", 1))
sketch9.addConstraint(Sketcher.Constraint("Vertical", 2))
sketch9.addConstraint(Sketcher.Constraint("Horizontal", 3))
sketch9.addConstraint(Sketcher.Constraint("DistanceY", 0, 2, 0, 1, 10.0))
sketch9.addConstraint(Sketcher.Constraint("DistanceX", 1, 1, 1, 2, 48.12))
sketch9.addConstraint(Sketcher.Constraint("DistanceX", 0, 2, -1, 1, 24.06))
sketch9.addConstraint(Sketcher.Constraint("DistanceY", 0, 2, -1, 1, 5.01))
pocket6 = doc.addObject("PartDesign::Pocket", "Pocket005")
body.addObject(pocket6)
pocket6.Profile = sketch9
pocket6.Length = 15

# Sketch on XZ plane
sketch10 = doc.addObject("Sketcher::SketchObject", "Sketch009")
body.addObject(sketch10)
sketch10.AttachmentSupport = (doc.XZ_Plane, [""])
sketch10.MapMode = "FlatFace"
sketch10.AttachmentOffset = App.Placement(V(0, 0, 38.1), App.Rotation())
sketch10.addGeometry(Part.LineSegment(V(-4, 3, 0), V(-4, 1.5, 0)), False)
sketch10.addGeometry(Part.LineSegment(V(-4, 1.5, 0), V(4, 1.5, 0)), False)
sketch10.addGeometry(Part.LineSegment(V(4, 1.5, 0), V(4, 3, 0)), False)
sketch10.addGeometry(Part.LineSegment(V(4, 3, 0), V(-4, 3, 0)), False)
sketch10.addConstraint(Sketcher.Constraint("Coincident", 0, 2, 1, 1))
sketch10.addConstraint(Sketcher.Constraint("Coincident", 1, 2, 2, 1))
sketch10.addConstraint(Sketcher.Constraint("Coincident", 2, 2, 3, 1))
sketch10.addConstraint(Sketcher.Constraint("Coincident", 3, 2, 0, 1))
sketch10.addConstraint(Sketcher.Constraint("Vertical", 0))
sketch10.addConstraint(Sketcher.Constraint("Horizontal", 1))
sketch10.addConstraint(Sketcher.Constraint("Vertical", 2))
sketch10.addConstraint(Sketcher.Constraint("Horizontal", 3))
sketch10.addConstraint(Sketcher.Constraint("DistanceX", 1, 1, 1, 2, 8.0))
sketch10.addConstraint(Sketcher.Constraint("DistanceY", 0, 2, 0, 1, 1.5))
sketch10.addConstraint(Sketcher.Constraint("DistanceX", 0, 2, -1, 1, 4.0))
sketch10.addConstraint(Sketcher.Constraint("DistanceY", -1, 1, 2, 2, 3.0))
pocket7 = doc.addObject("PartDesign::Pocket", "Pocket006")
body.addObject(pocket7)
pocket7.Profile = sketch10
pocket7.Length = 2

# Sketch on XY plane
sketch11 = doc.addObject("Sketcher::SketchObject", "Sketch010")
body.addObject(sketch11)
sketch11.AttachmentSupport = (doc.XY_Plane, [""])
sketch11.MapMode = "FlatFace"
sketch11.AttachmentOffset = App.Placement(V(0, 0, 3), App.Rotation())
sketch11.addGeometry(Part.ArcOfCircle(Part.Circle(V(0, 0, 0), V(0, 0, 1), 10), math.radians(90), math.radians(270)), False)
sketch11.addGeometry(Part.LineSegment(V(0, -10, 0), V(25, -10, 0)), False)
sketch11.addGeometry(Part.LineSegment(V(25, -10, 0), V(25, 10, 0)), False)
sketch11.addGeometry(Part.LineSegment(V(25, 10, 0), V(0, 10, 0)), False)
sketch11.addConstraint(Sketcher.Constraint("Tangent", 0, 2, 1, 1))
sketch11.addConstraint(Sketcher.Constraint("Coincident", 1, 2, 2, 1))
sketch11.addConstraint(Sketcher.Constraint("Coincident", 2, 2, 3, 1))
sketch11.addConstraint(Sketcher.Constraint("Tangent", 3, 2, 0, 1))
sketch11.addConstraint(Sketcher.Constraint("Horizontal", 1))
sketch11.addConstraint(Sketcher.Constraint("Vertical", 2))
sketch11.addConstraint(Sketcher.Constraint("Horizontal", 3))
sketch11.addConstraint(Sketcher.Constraint("Coincident", 0, 3, -1, 1))
sketch11.addConstraint(Sketcher.Constraint("Radius", 0, 10.0))
sketch11.addConstraint(Sketcher.Constraint("DistanceX", 1, 1, 1, 2, 25.4))
pocket8 = doc.addObject("PartDesign::Pocket", "Pocket007")
body.addObject(pocket8)
pocket8.Profile = sketch11
pocket8.Type = "ThroughAll"
pocket8.Midplane = True

# Sketch on XY plane
sketch12 = doc.addObject("Sketcher::SketchObject", "Sketch011")
body.addObject(sketch12)
sketch12.AttachmentSupport = (doc.XY_Plane, [""])
sketch12.MapMode = "FlatFace"
sketch12.AttachmentOffset = App.Placement(V(0, 0, 3), App.Rotation())
sketch12.addGeometry(Part.LineSegment(V(10, 15, 0), V(10, 10, 0)), False)
sketch12.addGeometry(Part.LineSegment(V(10, 10, 0), V(15, 10, 0)), False)
sketch12.addGeometry(Part.LineSegment(V(15, 10, 0), V(15, 15, 0)), False)
sketch12.addGeometry(Part.LineSegment(V(15, 15, 0), V(10, 15, 0)), False)
sketch12.addGeometry(Part.LineSegment(V(10, -10, 0), V(10, -15, 0)), False)
sketch12.addGeometry(Part.LineSegment(V(10, -15, 0), V(15, -15, 0)), False)
sketch12.addGeometry(Part.LineSegment(V(15, -15, 0), V(15, -10, 0)), False)
sketch12.addGeometry(Part.LineSegment(V(15, -10, 0), V(10, -10, 0)), False)
sketch12.addConstraint(Sketcher.Constraint("Coincident", 0, 2, 1, 1))
sketch12.addConstraint(Sketcher.Constraint("Coincident", 1, 2, 2, 1))
sketch12.addConstraint(Sketcher.Constraint("Coincident", 2, 2, 3, 1))
sketch12.addConstraint(Sketcher.Constraint("Coincident", 3, 2, 0, 1))
sketch12.addConstraint(Sketcher.Constraint("Coincident", 4, 2, 5, 1))
sketch12.addConstraint(Sketcher.Constraint("Coincident", 5, 2, 6, 1))
sketch12.addConstraint(Sketcher.Constraint("Coincident", 6, 2, 7, 1))
sketch12.addConstraint(Sketcher.Constraint("Coincident", 7, 2, 4, 1))
sketch12.addConstraint(Sketcher.Constraint("Vertical", 0))
sketch12.addConstraint(Sketcher.Constraint("Horizontal", 1))
sketch12.addConstraint(Sketcher.Constraint("Vertical", 2))
sketch12.addConstraint(Sketcher.Constraint("Horizontal", 3))
sketch12.addConstraint(Sketcher.Constraint("Vertical", 4))
sketch12.addConstraint(Sketcher.Constraint("Horizontal", 5))
sketch12.addConstraint(Sketcher.Constraint("Vertical", 6))
sketch12.addConstraint(Sketcher.Constraint("Horizontal", 7))
sketch12.addConstraint(Sketcher.Constraint("Symmetric", 3, 2, 4, 2, -1))
sketch12.addConstraint(Sketcher.Constraint("Symmetric", 1, 2, 6, 2, -1))
sketch12.addConstraint(Sketcher.Constraint("Equal", 7, 0))
sketch12.addConstraint(Sketcher.Constraint("DistanceX", 1, 1, 1, 2, 5.0))
sketch12.addConstraint(Sketcher.Constraint("DistanceY", -1, 1, 0, 2, 10.0))
sketch12.addConstraint(Sketcher.Constraint("DistanceX", -1, 1, 0, 2, 10.4))
pocket9 = doc.addObject("PartDesign::Pocket", "Pocket008")
body.addObject(pocket9)
pocket9.Profile = sketch12
pocket9.Type = "ThroughAll"

doc.recompute()
